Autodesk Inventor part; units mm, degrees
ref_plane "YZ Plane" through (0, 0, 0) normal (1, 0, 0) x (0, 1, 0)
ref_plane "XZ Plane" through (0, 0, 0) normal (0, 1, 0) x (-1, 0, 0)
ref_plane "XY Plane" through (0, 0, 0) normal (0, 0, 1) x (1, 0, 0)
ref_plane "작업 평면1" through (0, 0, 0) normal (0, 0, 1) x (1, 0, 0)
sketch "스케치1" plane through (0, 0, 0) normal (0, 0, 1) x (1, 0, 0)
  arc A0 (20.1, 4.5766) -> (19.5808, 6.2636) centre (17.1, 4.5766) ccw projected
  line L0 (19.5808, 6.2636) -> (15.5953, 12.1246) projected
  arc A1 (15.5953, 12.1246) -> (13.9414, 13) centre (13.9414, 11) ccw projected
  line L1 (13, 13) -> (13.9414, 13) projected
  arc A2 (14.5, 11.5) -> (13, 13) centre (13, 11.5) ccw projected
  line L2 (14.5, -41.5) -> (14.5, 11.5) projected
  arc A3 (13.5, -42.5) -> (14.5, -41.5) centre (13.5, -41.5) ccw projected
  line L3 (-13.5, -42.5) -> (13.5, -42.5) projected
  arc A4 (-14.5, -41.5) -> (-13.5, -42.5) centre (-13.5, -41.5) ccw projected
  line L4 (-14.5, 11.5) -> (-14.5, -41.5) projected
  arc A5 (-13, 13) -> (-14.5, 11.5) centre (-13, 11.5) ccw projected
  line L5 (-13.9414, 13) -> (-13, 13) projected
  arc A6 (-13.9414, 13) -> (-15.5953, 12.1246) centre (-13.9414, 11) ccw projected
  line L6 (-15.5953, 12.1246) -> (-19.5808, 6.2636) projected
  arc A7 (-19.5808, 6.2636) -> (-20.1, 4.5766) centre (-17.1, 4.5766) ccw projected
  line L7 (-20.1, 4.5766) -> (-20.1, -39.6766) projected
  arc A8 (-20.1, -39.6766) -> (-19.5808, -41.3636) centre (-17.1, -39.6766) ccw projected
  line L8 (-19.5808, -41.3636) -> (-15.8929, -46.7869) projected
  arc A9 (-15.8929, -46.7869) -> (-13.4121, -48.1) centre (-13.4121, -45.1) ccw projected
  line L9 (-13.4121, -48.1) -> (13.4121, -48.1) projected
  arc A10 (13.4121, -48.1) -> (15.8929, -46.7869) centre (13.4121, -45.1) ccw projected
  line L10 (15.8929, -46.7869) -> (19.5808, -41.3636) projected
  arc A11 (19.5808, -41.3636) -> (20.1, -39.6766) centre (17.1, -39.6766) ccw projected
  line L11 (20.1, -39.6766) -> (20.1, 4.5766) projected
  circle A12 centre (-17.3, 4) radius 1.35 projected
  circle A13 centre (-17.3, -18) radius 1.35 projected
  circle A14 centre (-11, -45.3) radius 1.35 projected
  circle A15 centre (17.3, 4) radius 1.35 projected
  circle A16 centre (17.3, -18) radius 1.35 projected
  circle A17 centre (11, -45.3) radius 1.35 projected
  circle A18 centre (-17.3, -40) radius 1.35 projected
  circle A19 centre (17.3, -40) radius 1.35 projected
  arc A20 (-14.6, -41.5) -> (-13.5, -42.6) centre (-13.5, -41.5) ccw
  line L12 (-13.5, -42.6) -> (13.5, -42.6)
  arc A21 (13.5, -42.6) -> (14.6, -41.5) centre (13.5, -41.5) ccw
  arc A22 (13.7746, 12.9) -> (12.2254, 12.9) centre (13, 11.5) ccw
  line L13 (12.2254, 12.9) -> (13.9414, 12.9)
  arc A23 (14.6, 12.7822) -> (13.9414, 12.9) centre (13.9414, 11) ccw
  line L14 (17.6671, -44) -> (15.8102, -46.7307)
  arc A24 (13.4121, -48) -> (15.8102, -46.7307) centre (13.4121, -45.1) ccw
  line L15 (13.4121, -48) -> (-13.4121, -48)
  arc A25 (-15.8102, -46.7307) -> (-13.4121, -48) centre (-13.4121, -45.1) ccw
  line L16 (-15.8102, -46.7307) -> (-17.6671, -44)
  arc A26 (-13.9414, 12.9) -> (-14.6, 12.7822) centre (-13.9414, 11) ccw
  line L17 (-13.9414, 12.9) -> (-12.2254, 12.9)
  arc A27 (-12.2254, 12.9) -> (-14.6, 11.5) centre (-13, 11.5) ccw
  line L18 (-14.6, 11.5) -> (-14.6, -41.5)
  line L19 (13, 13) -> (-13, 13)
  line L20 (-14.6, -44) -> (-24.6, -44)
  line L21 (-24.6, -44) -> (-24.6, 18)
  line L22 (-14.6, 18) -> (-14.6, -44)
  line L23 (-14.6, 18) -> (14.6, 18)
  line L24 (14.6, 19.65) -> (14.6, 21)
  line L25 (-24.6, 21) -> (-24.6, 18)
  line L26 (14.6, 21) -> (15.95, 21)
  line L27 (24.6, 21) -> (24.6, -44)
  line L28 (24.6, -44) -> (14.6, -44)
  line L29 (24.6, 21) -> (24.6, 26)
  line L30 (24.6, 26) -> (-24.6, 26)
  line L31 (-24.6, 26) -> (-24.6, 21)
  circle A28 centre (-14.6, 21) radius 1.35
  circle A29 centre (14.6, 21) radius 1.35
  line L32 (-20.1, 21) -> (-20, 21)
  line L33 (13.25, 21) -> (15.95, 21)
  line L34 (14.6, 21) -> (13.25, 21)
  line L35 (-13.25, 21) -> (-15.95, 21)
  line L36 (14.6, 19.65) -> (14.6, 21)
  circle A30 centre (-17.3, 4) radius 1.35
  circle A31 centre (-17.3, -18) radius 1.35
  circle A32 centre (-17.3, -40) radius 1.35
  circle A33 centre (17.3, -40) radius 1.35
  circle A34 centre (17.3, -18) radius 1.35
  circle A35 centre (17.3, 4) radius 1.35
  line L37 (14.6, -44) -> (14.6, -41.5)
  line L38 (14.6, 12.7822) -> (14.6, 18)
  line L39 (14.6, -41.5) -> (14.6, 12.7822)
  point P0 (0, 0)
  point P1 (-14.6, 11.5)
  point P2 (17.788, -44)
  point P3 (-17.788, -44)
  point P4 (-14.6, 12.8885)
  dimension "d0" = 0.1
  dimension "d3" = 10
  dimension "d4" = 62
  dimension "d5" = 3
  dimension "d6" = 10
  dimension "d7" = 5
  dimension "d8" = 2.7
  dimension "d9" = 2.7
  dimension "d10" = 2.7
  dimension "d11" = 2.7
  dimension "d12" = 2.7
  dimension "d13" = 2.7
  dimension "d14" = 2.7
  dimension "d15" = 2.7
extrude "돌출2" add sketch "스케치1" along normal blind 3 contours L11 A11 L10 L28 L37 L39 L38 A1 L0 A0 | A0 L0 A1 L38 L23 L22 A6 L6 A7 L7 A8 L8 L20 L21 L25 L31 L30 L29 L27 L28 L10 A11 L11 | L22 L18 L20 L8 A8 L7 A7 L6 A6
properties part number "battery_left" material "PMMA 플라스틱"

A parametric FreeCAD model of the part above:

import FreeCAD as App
import Part
import Sketcher
from FreeCAD import Vector
Q = App.Units.Quantity


def add_polygon(sketch, points):
    """Adds a closed chain of lines whose ends are joined by coincident constraints."""
    first, n = sketch.GeometryCount, len(points)
    for a, b in zip(points, points[1:] + points[:1]):
        sketch.addGeometry(Part.LineSegment(App.Vector(*a, 0), App.Vector(*b, 0)), False)
    for i in range(n):
        sketch.addConstraint(Sketcher.Constraint("Coincident", first + i, 2, first + (i + 1) % n, 1))

doc = App.newDocument("Part")
body = doc.addObject("PartDesign::Body", "Body")

sketch1 = doc.addObject("Sketcher::SketchObject", "Sketch")
body.addObject(sketch1)
sketch1.AttachmentSupport = (doc.XY_Plane, [""])
sketch1.MapMode = "FlatFace"
add_polygon(sketch1, [(24.6, -44), (24.6, 26), (-24.6, 26), (-24.6, -44), (-14.6, -44), (-14.6, 18), (14.6, 18), (14.6, -44)])
sketch1.addGeometry(Part.Circle(Vector(17.3, -40, 0), Vector(0, 0, 1), 1.4), False)
sketch1.addGeometry(Part.Circle(Vector(17.3, -18, 0), Vector(0, 0, 1), 1.4), False)
sketch1.addGeometry(Part.Circle(Vector(17.3, 4, 0), Vector(0, 0, 1), 1.4), False)
sketch1.addGeometry(Part.Circle(Vector(14.6, 21, 0), Vector(0, 0, 1), 1.4), False)
sketch1.addGeometry(Part.Circle(Vector(-14.6, 21, 0), Vector(0, 0, 1), 1.4), False)
sketch1.addGeometry(Part.Circle(Vector(-17.3, -40, 0), Vector(0, 0, 1), 1.4), False)
sketch1.addGeometry(Part.Circle(Vector(-17.3, -18, 0), Vector(0, 0, 1), 1.4), False)
sketch1.addGeometry(Part.Circle(Vector(-17.3, 4, 0), Vector(0, 0, 1), 1.4), False)
sketch1.addConstraint(Sketcher.Constraint("Vertical", 0))
sketch1.addConstraint(Sketcher.Constraint("Horizontal", 1))
sketch1.addConstraint(Sketcher.Constraint("Vertical", 2))
sketch1.addConstraint(Sketcher.Constraint("Horizontal", 3))
sketch1.addConstraint(Sketcher.Constraint("Vertical", 4))
sketch1.addConstraint(Sketcher.Constraint("Horizontal", 5))
sketch1.addConstraint(Sketcher.Constraint("Vertical", 6))
sketch1.addConstraint(Sketcher.Constraint("Horizontal", 7))
sketch1.addConstraint(Sketcher.Constraint("Equal", 8, 9))
sketch1.addConstraint(Sketcher.Constraint("Equal", 9, 10))
sketch1.addConstraint(Sketcher.Constraint("Equal", 10, 11))
sketch1.addConstraint(Sketcher.Constraint("Equal", 11, 12))
sketch1.addConstraint(Sketcher.Constraint("Equal", 12, 13))
sketch1.addConstraint(Sketcher.Constraint("Equal", 13, 14))
sketch1.addConstraint(Sketcher.Constraint("Equal", 14, 15))
sketch1.addConstraint(Sketcher.Constraint("Symmetric", 11, 3, 12, 3, -2))
sketch1.addConstraint(Sketcher.Constraint("Symmetric", 8, 3, 13, 3, -2))
sketch1.addConstraint(Sketcher.Constraint("Symmetric", 9, 3, 14, 3, -2))
sketch1.addConstraint(Sketcher.Constraint("Symmetric", 10, 3, 15, 3, -2))
sketch1.addConstraint(Sketcher.Constraint("Symmetric", 3, 2, 6, 2, -2))
sketch1.addConstraint(Sketcher.Constraint("Vertical", 8, 3, 9, 3))
sketch1.addConstraint(Sketcher.Constraint("Vertical", 9, 3, 10, 3))
sketch1.addConstraint(Sketcher.Constraint("Vertical", 12, 3, 3, 2))
sketch1.addConstraint(Sketcher.Constraint("Equal", 3, 7))
sketch1.addConstraint(Sketcher.Constraint("Diameter", 8, Q("2.7 mm")))
sketch1.addConstraint(Sketcher.Constraint("DistanceX", 3, 1, 3, 2, Q("10 mm")))
sketch1.addConstraint(Sketcher.Constraint("DistanceY", 4, 1, 4, 2, Q("62 mm")))
sketch1.addConstraint(Sketcher.Constraint("DistanceY", 11, 3, 0, 2, Q("5 mm")))
sketch1.addConstraint(Sketcher.Constraint("DistanceY", 4, 2, 12, 3, Q("3 mm")))
sketch1.addConstraint(Sketcher.Constraint("DistanceX", 11, 3, 10, 3, Q("2.7 mm")))
sketch1.addConstraint(Sketcher.Constraint("DistanceX", 1, 2, 1, 1, Q("49.2 mm")))
sketch1.addConstraint(Sketcher.Constraint("DistanceY", 8, 3, -1, 1, Q("40 mm")))
sketch1.addConstraint(Sketcher.Constraint("DistanceY", 9, 3, -1, 1, Q("18 mm")))
sketch1.addConstraint(Sketcher.Constraint("DistanceY", -1, 1, 10, 3, Q("4 mm")))
sketch1.addConstraint(Sketcher.Constraint("DistanceY", -1, 1, 11, 3, Q("21 mm")))
pad1 = doc.addObject("PartDesign::Pad", "Pad")
body.addObject(pad1)
pad1.Profile = sketch1
pad1.Length = 3

doc.recompute()
